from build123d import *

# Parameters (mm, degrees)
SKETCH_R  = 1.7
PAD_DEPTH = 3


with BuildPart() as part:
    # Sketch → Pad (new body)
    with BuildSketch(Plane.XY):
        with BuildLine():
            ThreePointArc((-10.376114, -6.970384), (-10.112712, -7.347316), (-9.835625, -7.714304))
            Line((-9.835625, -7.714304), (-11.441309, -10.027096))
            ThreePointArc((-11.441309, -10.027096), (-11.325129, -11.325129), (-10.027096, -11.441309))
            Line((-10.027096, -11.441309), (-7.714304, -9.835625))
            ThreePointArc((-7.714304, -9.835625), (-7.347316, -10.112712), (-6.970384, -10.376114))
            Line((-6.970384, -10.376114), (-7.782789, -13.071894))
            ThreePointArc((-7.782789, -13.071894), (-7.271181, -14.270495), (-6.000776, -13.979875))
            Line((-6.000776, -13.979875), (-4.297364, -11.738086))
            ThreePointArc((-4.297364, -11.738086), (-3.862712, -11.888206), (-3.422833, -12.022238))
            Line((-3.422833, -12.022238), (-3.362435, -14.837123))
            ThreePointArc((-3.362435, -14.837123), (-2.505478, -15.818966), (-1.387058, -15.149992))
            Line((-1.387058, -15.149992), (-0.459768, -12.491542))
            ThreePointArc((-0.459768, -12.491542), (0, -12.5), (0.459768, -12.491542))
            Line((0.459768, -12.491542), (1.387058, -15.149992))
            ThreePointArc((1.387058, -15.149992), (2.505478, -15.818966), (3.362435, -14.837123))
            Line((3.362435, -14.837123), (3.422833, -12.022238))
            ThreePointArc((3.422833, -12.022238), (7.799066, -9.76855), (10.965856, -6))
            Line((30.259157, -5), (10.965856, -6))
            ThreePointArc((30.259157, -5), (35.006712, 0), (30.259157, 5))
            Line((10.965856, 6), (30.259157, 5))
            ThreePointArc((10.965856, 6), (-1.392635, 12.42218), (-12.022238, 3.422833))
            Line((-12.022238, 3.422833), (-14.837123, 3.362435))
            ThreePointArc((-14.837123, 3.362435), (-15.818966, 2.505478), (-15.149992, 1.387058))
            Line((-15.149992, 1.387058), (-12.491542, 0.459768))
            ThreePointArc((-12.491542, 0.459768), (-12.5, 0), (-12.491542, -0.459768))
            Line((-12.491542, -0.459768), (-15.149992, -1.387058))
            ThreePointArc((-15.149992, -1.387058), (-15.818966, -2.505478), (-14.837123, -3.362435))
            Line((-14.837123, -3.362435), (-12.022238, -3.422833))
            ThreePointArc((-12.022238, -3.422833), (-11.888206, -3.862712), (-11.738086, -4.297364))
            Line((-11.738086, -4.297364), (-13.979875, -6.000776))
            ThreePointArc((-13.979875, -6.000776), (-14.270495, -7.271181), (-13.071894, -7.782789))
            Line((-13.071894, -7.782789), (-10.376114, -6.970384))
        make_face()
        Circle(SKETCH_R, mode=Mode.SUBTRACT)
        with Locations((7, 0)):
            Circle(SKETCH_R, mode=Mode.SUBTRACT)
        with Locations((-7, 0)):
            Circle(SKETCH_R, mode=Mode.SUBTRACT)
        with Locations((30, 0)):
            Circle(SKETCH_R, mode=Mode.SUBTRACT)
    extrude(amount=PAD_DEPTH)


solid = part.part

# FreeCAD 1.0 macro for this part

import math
import FreeCAD as App
import Part
import Sketcher

doc = App.newDocument("Part")
body = doc.addObject("PartDesign::Body", "Body")

# Sketch on XY plane
sketch1 = body.newObject("Sketcher::SketchObject", "Sketch")
sketch1.AttachmentSupport = (doc.getObject("XY_Plane"), [""])
sketch1.MapMode = "FlatFace"
sketch1.addGeometry([
    Part.ArcOfCircle(Part.Circle(App.Vector(0.00018, 0.000124, 0), App.Vector(0, 0, 1), 12.500218), math.radians(-146.107885), math.radians(-141.892168)),  # 0
    Part.LineSegment(App.Vector(-9.835625, -7.714304, 0), App.Vector(-11.441309, -10.027096, 0)),  # 1
    Part.ArcOfCircle(Part.Circle(App.Vector(-10.606602, -10.606602, 0), App.Vector(0, 0, 1), 1.016151), math.radians(145.229221), math.radians(304.770779)),  # 2
    Part.LineSegment(App.Vector(-10.027096, -11.441309, 0), App.Vector(-7.714304, -9.835625, 0)),  # 3
    Part.ArcOfCircle(Part.Circle(App.Vector(0.000124, 0.00018, 0), App.Vector(0, 0, 1), 12.500218), math.radians(-128.107832), math.radians(-123.892115)),  # 4
    Part.LineSegment(App.Vector(-6.970384, -10.376114, 0), App.Vector(-7.782789, -13.071894, 0)),  # 5
    Part.ArcOfCircle(Part.Circle(App.Vector(-6.809857, -13.365097, 0), App.Vector(0, 0, 1), 1.016152), math.radians(163.229251), math.radians(322.770748)),  # 6
    Part.LineSegment(App.Vector(-6.000776, -13.979875, 0), App.Vector(-4.297364, -11.738086, 0)),  # 7
    Part.ArcOfCircle(Part.Circle(App.Vector(0.000186, 0.000585, 0), App.Vector(0, 0, 1), 12.500614), math.radians(-110.107773), math.radians(-105.892186)),  # 8
    Part.LineSegment(App.Vector(-3.422833, -12.022238, 0), App.Vector(-3.362435, -14.837123, 0)),  # 9
    Part.ArcOfCircle(Part.Circle(App.Vector(-2.346517, -14.815325, 0), App.Vector(0, 0, 1), 1.016152), math.radians(-178.770815), math.radians(-19.229186)),  # 10
    Part.LineSegment(App.Vector(-1.387058, -15.149992, 0), App.Vector(-0.459768, -12.491542, 0)),  # 11
    Part.ArcOfCircle(Part.Circle(App.Vector(0, 0.000482, 0), App.Vector(0, 0, 1), 12.500482), math.radians(-92.107815), math.radians(-87.892185)),  # 12
    Part.LineSegment(App.Vector(0.459768, -12.491542, 0), App.Vector(1.387058, -15.149992, 0)),  # 13
    Part.ArcOfCircle(Part.Circle(App.Vector(2.346517, -14.815325, 0), App.Vector(0, 0, 1), 1.016152), math.radians(-160.770814), math.radians(-1.229185)),  # 14
    Part.LineSegment(App.Vector(3.362435, -14.837123, 0), App.Vector(3.422833, -12.022238, 0)),  # 15
    Part.ArcOfCircle(Part.Circle(App.Vector(0.000002, -0.000002, 0), App.Vector(0, 0, 1), 12.499998), math.radians(-74.107903), math.radians(-28.685399)),  # 16
    Part.LineSegment(App.Vector(10.965856, -6, 0), App.Vector(30.259157, -5, 0)),  # 17
    Part.ArcOfCircle(Part.Circle(App.Vector(30, 0, 0), App.Vector(0, 0, 1), 5.006712), math.radians(-87.032938), math.radians(87.032938)),  # 18
    Part.LineSegment(App.Vector(30.259157, 5, 0), App.Vector(10.965856, 6, 0)),  # 19
    Part.ArcOfCircle(Part.Circle(App.Vector(0, 0, 0), App.Vector(0, 0, 1), 12.5), math.radians(28.685404), math.radians(164.107896)),  # 20
    Part.LineSegment(App.Vector(-12.022238, 3.422833, 0), App.Vector(-14.837123, 3.362435, 0)),  # 21
    Part.ArcOfCircle(Part.Circle(App.Vector(-14.815325, 2.346517, 0), App.Vector(0, 0, 1), 1.016152), math.radians(91.229185), math.radians(250.770814)),  # 22
    Part.LineSegment(App.Vector(-15.149992, 1.387058, 0), App.Vector(-12.491542, 0.459768, 0)),  # 23
    Part.ArcOfCircle(Part.Circle(App.Vector(0.000482, 0, 0), App.Vector(0, 0, 1), 12.500482), math.radians(177.892185), math.radians(182.107815)),  # 24
    Part.LineSegment(App.Vector(-12.491542, -0.459768, 0), App.Vector(-15.149992, -1.387058, 0)),  # 25
    Part.ArcOfCircle(Part.Circle(App.Vector(-14.815325, -2.346517, 0), App.Vector(0, 0, 1), 1.016152), math.radians(109.229186), math.radians(268.770815)),  # 26
    Part.LineSegment(App.Vector(-14.837123, -3.362435, 0), App.Vector(-12.022238, -3.422833, 0)),  # 27
    Part.ArcOfCircle(Part.Circle(App.Vector(0.000585, 0.000186, 0), App.Vector(0, 0, 1), 12.500614), math.radians(-164.107814), math.radians(-159.892227)),  # 28
    Part.LineSegment(App.Vector(-11.738086, -4.297364, 0), App.Vector(-13.979875, -6.000776, 0)),  # 29
    Part.ArcOfCircle(Part.Circle(App.Vector(-13.365097, -6.809857, 0), App.Vector(0, 0, 1), 1.016152), math.radians(127.229252), math.radians(286.770749)),  # 30
    Part.LineSegment(App.Vector(-13.071894, -7.782789, 0), App.Vector(-10.376114, -6.970384, 0)),  # 31
    Part.Circle(App.Vector(-7, 0, 0), App.Vector(0, 0, 1), 1.7),  # 32
    Part.Circle(App.Vector(0, 0, 0), App.Vector(0, 0, 1), 1.7),  # 33
    Part.Circle(App.Vector(7, 0, 0), App.Vector(0, 0, 1), 1.7),  # 34
    Part.Circle(App.Vector(30, 0, 0), App.Vector(0, 0, 1), 1.7),  # 35
], False)
sketch1.addConstraint([
    Sketcher.Constraint("Coincident", 0, 2, 1, 1),
    Sketcher.Constraint("Coincident", 1, 2, 2, 1),
    Sketcher.Constraint("Coincident", 2, 2, 3, 1),
    Sketcher.Constraint("Coincident", 3, 2, 4, 1),
    Sketcher.Constraint("Coincident", 4, 2, 5, 1),
    Sketcher.Constraint("Coincident", 5, 2, 6, 1),
    Sketcher.Constraint("Coincident", 6, 2, 7, 1),
    Sketcher.Constraint("Coincident", 7, 2, 8, 1),
    Sketcher.Constraint("Coincident", 8, 2, 9, 1),
    Sketcher.Constraint("Coincident", 9, 2, 10, 1),
    Sketcher.Constraint("Coincident", 10, 2, 11, 1),
    Sketcher.Constraint("Coincident", 11, 2, 12, 1),
    Sketcher.Constraint("Coincident", 12, 2, 13, 1),
    Sketcher.Constraint("Coincident", 13, 2, 14, 1),
    Sketcher.Constraint("Coincident", 14, 2, 15, 1),
    Sketcher.Constraint("Coincident", 15, 2, 16, 1),
    Sketcher.Constraint("Coincident", 16, 2, 17, 1),
    Sketcher.Constraint("Coincident", 17, 2, 18, 1),
    Sketcher.Constraint("Coincident", 18, 2, 19, 1),
    Sketcher.Constraint("Coincident", 19, 2, 20, 1),
    Sketcher.Constraint("Coincident", 20, 2, 21, 1),
    Sketcher.Constraint("Coincident", 21, 2, 22, 1),
    Sketcher.Constraint("Coincident", 22, 2, 23, 1),
    Sketcher.Constraint("Coincident", 23, 2, 24, 1),
    Sketcher.Constraint("Coincident", 24, 2, 25, 1),
    Sketcher.Constraint("Coincident", 25, 2, 26, 1),
    Sketcher.Constraint("Coincident", 26, 2, 27, 1),
    Sketcher.Constraint("Coincident", 27, 2, 28, 1),
    Sketcher.Constraint("Coincident", 28, 2, 29, 1),
    Sketcher.Constraint("Coincident", 29, 2, 30, 1),
    Sketcher.Constraint("Coincident", 30, 2, 31, 1),
    Sketcher.Constraint("Coincident", 31, 2, 0, 1),
    Sketcher.Constraint("Coincident", 16, 3, -1, 1),
    Sketcher.Constraint("Coincident", 20, 3, -1, 1),
    Sketcher.Constraint("Coincident", 33, 3, -1, 1),
    Sketcher.Constraint("Coincident", 35, 3, 18, 3),
    Sketcher.Constraint("PointOnObject", 12, 3, -2),
    Sketcher.Constraint("PointOnObject", 18, 3, -1),
    Sketcher.Constraint("PointOnObject", 24, 3, -1),
    Sketcher.Constraint("PointOnObject", 32, 3, -1),
    Sketcher.Constraint("PointOnObject", 34, 3, -1),
    Sketcher.Constraint("Diameter", 32, 3.4),
    Sketcher.Constraint("Diameter", 33, 3.4),
    Sketcher.Constraint("Diameter", 34, 3.4),
    Sketcher.Constraint("Diameter", 35, 3.4),
    Sketcher.Constraint("Radius", 20, 12.5),
    Sketcher.Constraint("DistanceX", -1, 1, 18, 3, 30.0),
    Sketcher.Constraint("DistanceX", 32, 3, -1, 1, 7.0),
    Sketcher.Constraint("DistanceX", -1, 1, 34, 3, 7.0),
    Sketcher.Constraint("DistanceY", 16, 2, -1, 1, 6.0),
    Sketcher.Constraint("DistanceY", 17, 2, -1, 1, 5.0),
    Sketcher.Constraint("DistanceY", -1, 1, 18, 2, 5.0),
    Sketcher.Constraint("DistanceY", -1, 1, 19, 2, 6.0),
    Sketcher.Constraint("Radius", 0, 12.500218),
    Sketcher.Constraint("Radius", 2, 1.016151),
    Sketcher.Constraint("Radius", 4, 12.500218),
    Sketcher.Constraint("Radius", 6, 1.016152),
    Sketcher.Constraint("Radius", 10, 1.016152),
    Sketcher.Constraint("Radius", 12, 12.500482),
    Sketcher.Constraint("Radius", 14, 1.016152),
    Sketcher.Constraint("Radius", 18, 5.006712),
    Sketcher.Constraint("Radius", 22, 1.016152),
    Sketcher.Constraint("Radius", 24, 12.500482),
    Sketcher.Constraint("Radius", 26, 1.016152),
    Sketcher.Constraint("Radius", 30, 1.016152),
    Sketcher.Constraint("Radius", 8, 12.500614),
    Sketcher.Constraint("Radius", 16, 12.499998),
    Sketcher.Constraint("Radius", 28, 12.500614),
    Sketcher.Constraint("DistanceY", 6, 3, 1, 2, 3.338001),
    Sketcher.Constraint("DistanceX", 30, 3, 2, 2, 3.338001),
    Sketcher.Constraint("DistanceX", 2, 3, -1, 1, 10.606602),
    Sketcher.Constraint("DistanceY", 2, 3, -1, 1, 10.606602),
    Sketcher.Constraint("DistanceY", 4, 3, 12, 3, 0.000302),
    Sketcher.Constraint("DistanceX", 0, 3, 24, 3, 0.000302),
    Sketcher.Constraint("DistanceX", 8, 3, 28, 3, 0.0004),
    Sketcher.Constraint("DistanceY", 28, 3, 8, 3, 0.0004),
    Sketcher.Constraint("DistanceX", 26, 3, 0, 2, 4.9797),
    Sketcher.Constraint("DistanceY", 9, 2, 10, 3, 0.021798),
    Sketcher.Constraint("DistanceX", 8, 2, 9, 2, 0.060398),
    Sketcher.Constraint("DistanceX", 8, 2, 12, 2, 3.882601),
    Sketcher.Constraint("DistanceY", 14, 2, 14, 3, 0.021798),
    Sketcher.Constraint("DistanceX", 14, 2, 15, 2, 0.060398),
    Sketcher.Constraint("DistanceX", 11, 2, 15, 2, 3.882601),
    Sketcher.Constraint("DistanceX", 21, 2, 22, 3, 0.021798),
    Sketcher.Constraint("DistanceY", 21, 2, 20, 2, 0.060398),
    Sketcher.Constraint("DistanceX", 21, 2, 26, 3, 0.021798),
    Sketcher.Constraint("DistanceY", 24, 2, 20, 2, 3.882601),
    Sketcher.Constraint("DistanceX", 26, 2, 26, 3, 0.021798),
    Sketcher.Constraint("DistanceY", 27, 2, 26, 2, 0.060398),
    Sketcher.Constraint("DistanceX", -1, 1, 0, 3, 0.00018),
    Sketcher.Constraint("DistanceY", -1, 1, 4, 3, 0.00018),
    Sketcher.Constraint("DistanceX", 1, 2, -1, 1, 11.441309),
    Sketcher.Constraint("DistanceY", 2, 2, -1, 1, 11.441309),
    Sketcher.Constraint("DistanceX", 5, 2, -1, 1, 7.782789),
    Sketcher.Constraint("DistanceY", 8, 2, -1, 1, 12.022238),
    Sketcher.Constraint("DistanceX", 10, 2, -1, 1, 1.387058),
    Sketcher.Constraint("DistanceY", 10, 2, -1, 1, 15.149992),
    Sketcher.Constraint("DistanceY", 12, 2, -1, 1, 12.491542),
    Sketcher.Constraint("DistanceY", 13, 2, -1, 1, 15.149992),
    Sketcher.Constraint("DistanceX", 20, 2, -1, 1, 12.022238),
    Sketcher.Constraint("DistanceX", 22, 2, -1, 1, 15.149992),
    Sketcher.Constraint("DistanceY", -1, 1, 22, 2, 1.387058),
    Sketcher.Constraint("DistanceX", 25, 2, -1, 1, 15.149992),
    Sketcher.Constraint("DistanceY", 30, 2, -1, 1, 7.782789),
    Sketcher.Constraint("DistanceY", 6, 3, 0, 3, 13.365221),
    Sketcher.Constraint("DistanceX", 6, 3, 4, 3, 6.809981),
    Sketcher.Constraint("DistanceY", 0, 3, 8, 3, 0.000462),
    Sketcher.Constraint("DistanceX", 6, 3, 10, 3, 4.46334),
    Sketcher.Constraint("DistanceX", 2, 3, 14, 3, 12.953119),
    Sketcher.Constraint("DistanceY", 14, 3, 0, 3, 14.815449),
    Sketcher.Constraint("DistanceY", 6, 3, 26, 3, 11.01858),
    Sketcher.Constraint("DistanceY", 30, 3, 26, 3, 4.46334),
    Sketcher.Constraint("DistanceX", 2, 2, 3, 2, 2.312792),
    Sketcher.Constraint("DistanceX", 3, 2, 4, 2, 0.74392),
    Sketcher.Constraint("DistanceX", 6, 3, 6, 2, 0.809081),
    Sketcher.Constraint("DistanceY", 6, 2, 7, 2, 2.241789),
    Sketcher.Constraint("DistanceX", 22, 2, 23, 2, 2.65845),
    Sketcher.Constraint("DistanceX", 27, 2, 28, 2, 0.284152),
    Sketcher.Constraint("DistanceY", 30, 3, 29, 2, 0.809081),
    Sketcher.Constraint("DistanceX", 31, 2, 0, 2, 0.540489),
])
pad1 = body.newObject("PartDesign::Pad", "Pad")
pad1.Profile = sketch1
pad1.Length = 3

doc.recompute()
